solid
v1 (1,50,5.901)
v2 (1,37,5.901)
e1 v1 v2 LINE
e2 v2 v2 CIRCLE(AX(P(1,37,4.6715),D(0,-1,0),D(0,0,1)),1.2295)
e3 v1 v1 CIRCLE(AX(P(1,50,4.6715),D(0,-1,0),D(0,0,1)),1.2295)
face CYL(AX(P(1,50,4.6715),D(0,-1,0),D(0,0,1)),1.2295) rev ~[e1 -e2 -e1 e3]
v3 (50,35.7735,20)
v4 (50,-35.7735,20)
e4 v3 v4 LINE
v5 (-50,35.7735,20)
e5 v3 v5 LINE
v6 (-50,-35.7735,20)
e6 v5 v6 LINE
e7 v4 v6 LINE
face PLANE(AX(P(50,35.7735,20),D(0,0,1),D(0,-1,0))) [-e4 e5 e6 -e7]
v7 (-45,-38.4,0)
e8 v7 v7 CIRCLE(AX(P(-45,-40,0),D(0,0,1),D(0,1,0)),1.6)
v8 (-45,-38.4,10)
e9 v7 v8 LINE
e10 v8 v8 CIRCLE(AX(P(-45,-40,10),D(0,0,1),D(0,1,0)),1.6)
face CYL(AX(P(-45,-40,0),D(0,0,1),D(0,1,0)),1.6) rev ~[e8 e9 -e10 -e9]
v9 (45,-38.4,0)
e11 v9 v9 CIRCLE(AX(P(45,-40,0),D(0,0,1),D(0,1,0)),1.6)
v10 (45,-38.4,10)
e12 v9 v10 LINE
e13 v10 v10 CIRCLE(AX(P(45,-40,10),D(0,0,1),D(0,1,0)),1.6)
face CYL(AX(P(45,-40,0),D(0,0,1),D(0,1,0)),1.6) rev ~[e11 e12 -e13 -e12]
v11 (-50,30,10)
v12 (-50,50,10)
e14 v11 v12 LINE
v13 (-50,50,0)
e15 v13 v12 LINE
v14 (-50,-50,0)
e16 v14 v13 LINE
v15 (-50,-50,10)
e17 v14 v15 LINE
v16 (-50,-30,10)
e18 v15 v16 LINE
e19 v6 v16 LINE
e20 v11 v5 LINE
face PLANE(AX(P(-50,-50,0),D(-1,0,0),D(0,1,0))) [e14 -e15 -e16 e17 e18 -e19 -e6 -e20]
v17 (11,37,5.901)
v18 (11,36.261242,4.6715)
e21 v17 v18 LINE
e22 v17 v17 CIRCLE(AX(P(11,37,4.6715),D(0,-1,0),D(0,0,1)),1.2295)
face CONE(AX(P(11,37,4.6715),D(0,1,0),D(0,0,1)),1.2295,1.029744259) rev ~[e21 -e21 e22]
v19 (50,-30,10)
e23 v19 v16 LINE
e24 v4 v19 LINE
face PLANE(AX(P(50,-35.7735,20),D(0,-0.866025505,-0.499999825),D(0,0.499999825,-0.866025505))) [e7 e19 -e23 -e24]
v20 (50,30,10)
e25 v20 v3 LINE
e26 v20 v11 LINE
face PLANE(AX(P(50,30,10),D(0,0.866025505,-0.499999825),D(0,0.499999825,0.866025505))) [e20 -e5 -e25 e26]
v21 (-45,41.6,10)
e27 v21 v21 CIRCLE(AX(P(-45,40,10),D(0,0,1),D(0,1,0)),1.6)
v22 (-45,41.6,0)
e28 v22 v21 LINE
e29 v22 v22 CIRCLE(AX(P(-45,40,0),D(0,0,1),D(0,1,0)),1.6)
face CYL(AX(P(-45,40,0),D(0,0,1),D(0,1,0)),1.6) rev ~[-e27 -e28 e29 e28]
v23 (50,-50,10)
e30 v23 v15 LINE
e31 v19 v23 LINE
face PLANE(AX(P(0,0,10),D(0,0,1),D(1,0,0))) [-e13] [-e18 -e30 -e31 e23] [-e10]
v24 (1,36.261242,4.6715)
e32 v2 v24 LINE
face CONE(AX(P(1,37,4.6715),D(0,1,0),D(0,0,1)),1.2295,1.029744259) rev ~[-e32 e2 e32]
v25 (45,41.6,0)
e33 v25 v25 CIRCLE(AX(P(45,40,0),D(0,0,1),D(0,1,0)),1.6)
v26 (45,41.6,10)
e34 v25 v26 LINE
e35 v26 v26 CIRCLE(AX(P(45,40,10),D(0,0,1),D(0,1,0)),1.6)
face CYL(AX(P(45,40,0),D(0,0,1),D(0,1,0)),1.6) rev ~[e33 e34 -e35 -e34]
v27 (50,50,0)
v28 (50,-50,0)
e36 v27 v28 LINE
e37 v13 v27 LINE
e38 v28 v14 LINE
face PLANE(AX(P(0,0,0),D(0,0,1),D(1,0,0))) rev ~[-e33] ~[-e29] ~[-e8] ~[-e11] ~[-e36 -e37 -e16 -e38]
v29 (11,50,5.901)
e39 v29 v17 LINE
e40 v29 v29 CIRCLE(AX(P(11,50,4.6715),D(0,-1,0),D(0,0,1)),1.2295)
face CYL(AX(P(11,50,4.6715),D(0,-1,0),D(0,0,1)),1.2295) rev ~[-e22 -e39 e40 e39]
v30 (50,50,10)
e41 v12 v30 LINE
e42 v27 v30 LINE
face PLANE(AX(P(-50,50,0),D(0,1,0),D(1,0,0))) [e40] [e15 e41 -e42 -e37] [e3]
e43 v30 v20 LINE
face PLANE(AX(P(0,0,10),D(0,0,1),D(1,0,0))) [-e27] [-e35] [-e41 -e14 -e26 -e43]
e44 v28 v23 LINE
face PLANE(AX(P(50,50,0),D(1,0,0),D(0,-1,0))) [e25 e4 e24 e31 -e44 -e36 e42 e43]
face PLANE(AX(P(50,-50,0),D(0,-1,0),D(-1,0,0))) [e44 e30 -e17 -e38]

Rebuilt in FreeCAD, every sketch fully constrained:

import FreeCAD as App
import Part
import Sketcher

V = App.Vector
Q = App.Units.Quantity

doc = App.newDocument("Part")
params = doc.addObject("Spreadsheet::Sheet", "Params")
for row, (alias, value) in enumerate([
    ("sketch1_width", "100 mm"),
    ("pad1_length", "10 mm"),
    ("sketch2_width", "60 mm"),
    ("pad2_length", "100 mm"),
    ("sketch3_diameter", "3.2 mm"),
    ("hole_diameter", "3.2 mm"),
    ("hole2_diameter", "2.459 mm"),
    ("hole2_depth", "13 mm"),
], start=1):
    params.set(f"A{row}", alias)
    params.set(f"B{row}", "=" + value)
    params.setAlias(f"B{row}", alias)

body = doc.addObject("PartDesign::Body", "Body")

# Sketch on XY plane
sketch1 = body.newObject("Sketcher::SketchObject", "Sketch")
sketch1.AttachmentSupport = (doc.getObject("XY_Plane"), [""])
sketch1.MapMode = "FlatFace"
sketch1.addGeometry([
    Part.LineSegment(V(50, 50, 0), V(-50, 50, 0)),
    Part.LineSegment(V(-50, 50, 0), V(-50, -50, 0)),
    Part.LineSegment(V(-50, -50, 0), V(50, -50, 0)),
    Part.LineSegment(V(50, -50, 0), V(50, 50, 0)),
], False)
sketch1.addConstraint([
    Sketcher.Constraint("Coincident", 0, 2, 1, 1),
    Sketcher.Constraint("Coincident", 1, 2, 2, 1),
    Sketcher.Constraint("Coincident", 2, 2, 3, 1),
    Sketcher.Constraint("Coincident", 3, 2, 0, 1),
    Sketcher.Constraint("Horizontal", 0),
    Sketcher.Constraint("Vertical", 1),
    Sketcher.Constraint("Horizontal", 2),
    Sketcher.Constraint("Vertical", 3),
    Sketcher.Constraint("Symmetric", 0, 2, 2, 2, -1, 1),
    Sketcher.Constraint("Equal", 2, 1),
    Sketcher.Constraint("DistanceX", 0, 2, 0, 1, Q("100 mm")),
])
sketch1.setExpression("Constraints[10]", "Params.sketch1_width")
pad1 = body.newObject("PartDesign::Pad", "Pad")
pad1.Profile = sketch1
pad1.setExpression("Length", "Params.pad1_length")

# Sketch on YZ plane
sketch2 = body.newObject("Sketcher::SketchObject", "Sketch001")
sketch2.AttachmentSupport = (doc.getObject("YZ_Plane"), [""])
sketch2.MapMode = "FlatFace"
sketch2.AttachmentOffset = App.Placement(V(0, 0, 50), App.Rotation())
sketch2.addGeometry([
    Part.LineSegment(V(-30, 10, 0), V(30, 10, 0)),
    Part.LineSegment(V(30, 10, 0), V(36, 20, 0)),
    Part.LineSegment(V(36, 20, 0), V(-36, 20, 0)),
    Part.LineSegment(V(-36, 20, 0), V(-30, 10, 0)),
], False)
sketch2.addConstraint([
    Sketcher.Constraint("Coincident", 0, 2, 1, 1),
    Sketcher.Constraint("Coincident", 1, 2, 2, 1),
    Sketcher.Constraint("Coincident", 2, 2, 3, 1),
    Sketcher.Constraint("Coincident", 3, 2, 0, 1),
    Sketcher.Constraint("Horizontal", 0),
    Sketcher.Constraint("Horizontal", 2),
    Sketcher.Constraint("Equal", 1, 3),
    Sketcher.Constraint("DistanceX", 0, 1, 0, 2, Q("60 mm")),
    Sketcher.Constraint("Angle", 1, Q("60 deg")),
    Sketcher.Constraint("DistanceY", -1, 1, 0, 2, Q("10 mm")),
    Sketcher.Constraint("DistanceY", -1, 1, 1, 2, Q("20 mm")),
    Sketcher.Constraint("DistanceX", -1, 1, 0, 2, Q("30 mm")),
])
sketch2.setExpression("Constraints[7]", "Params.sketch2_width")
pad2 = body.newObject("PartDesign::Pad", "Pad001")
pad2.Profile = sketch2
pad2.setExpression("Length", "Params.pad2_length")
pad2.Reversed = True

# Sketch on XY plane
sketch3 = body.newObject("Sketcher::SketchObject", "Sketch002")
sketch3.AttachmentSupport = (doc.getObject("XY_Plane"), [""])
sketch3.MapMode = "FlatFace"
sketch3.addGeometry([
    Part.Circle(V(-45, -40, 0), V(0, 0, 1), 1.6),
    Part.Circle(V(-45, 40, 0), V(0, 0, 1), 1.6),
    Part.Circle(V(45, 40, 0), V(0, 0, 1), 1.6),
    Part.Circle(V(45, -40, 0), V(0, 0, 1), 1.6),
], False)
sketch3.addConstraint([
    Sketcher.Constraint("Equal", 0, 1),
    Sketcher.Constraint("Equal", 1, 2),
    Sketcher.Constraint("Equal", 2, 3),
    Sketcher.Constraint("Symmetric", 0, 3, 2, 3, -1, 1),
    Sketcher.Constraint("Symmetric", 1, 3, 3, 3, -1, 1),
    Sketcher.Constraint("Symmetric", 1, 3, 2, 3, -2),
    Sketcher.Constraint("Diameter", 0, Q("3.2 mm")),
    Sketcher.Constraint("DistanceX", 0, 3, -1, 1, Q("45 mm")),
    Sketcher.Constraint("DistanceY", 0, 3, -1, 1, Q("40 mm")),
])
sketch3.setExpression("Constraints[6]", "Params.sketch3_diameter")
doc.recompute()
hole = body.newObject("PartDesign::Hole", "Hole")
hole.Profile = sketch3
hole.ThreadType = "None"
hole.setExpression("Diameter", "Params.hole_diameter")
hole.DepthType = "ThroughAll"
hole.Reversed = True

# Sketch on XZ plane
sketch4 = body.newObject("Sketcher::SketchObject", "Sketch003")
sketch4.AttachmentSupport = (doc.getObject("XZ_Plane"), [""])
sketch4.MapMode = "FlatFace"
sketch4.AttachmentOffset = App.Placement(V(0, 0, -50), App.Rotation())
sketch4.addGeometry([
    Part.Circle(V(1, 4.7, 0), V(0, 0, 1), 1.2),
    Part.Circle(V(11, 4.7, 0), V(0, 0, 1), 1.2),
], False)
sketch4.addConstraint([
    Sketcher.Constraint("Equal", 0, 1),
    Sketcher.Constraint("Horizontal", 0, 3, 1, 3),
    Sketcher.Constraint("Diameter", 0, Q("2.459 mm")),
    Sketcher.Constraint("DistanceX", -1, 1, 0, 3, Q("1 mm")),
    Sketcher.Constraint("DistanceX", -1, 1, 1, 3, Q("11 mm")),
    Sketcher.Constraint("DistanceY", -1, 1, 0, 3, Q("4.6715 mm")),
])
doc.recompute()
hole2 = body.newObject("PartDesign::Hole", "Hole001")
hole2.Profile = sketch4
hole2.ThreadType = "None"
hole2.setExpression("Diameter", "Params.hole2_diameter")
hole2.DepthType = "Dimension"
hole2.setExpression("Depth", "Params.hole2_depth")
hole2.DrillPoint = "Angled"
hole2.DrillPointAngle = 118
hole2.Reversed = True

doc.recompute()
